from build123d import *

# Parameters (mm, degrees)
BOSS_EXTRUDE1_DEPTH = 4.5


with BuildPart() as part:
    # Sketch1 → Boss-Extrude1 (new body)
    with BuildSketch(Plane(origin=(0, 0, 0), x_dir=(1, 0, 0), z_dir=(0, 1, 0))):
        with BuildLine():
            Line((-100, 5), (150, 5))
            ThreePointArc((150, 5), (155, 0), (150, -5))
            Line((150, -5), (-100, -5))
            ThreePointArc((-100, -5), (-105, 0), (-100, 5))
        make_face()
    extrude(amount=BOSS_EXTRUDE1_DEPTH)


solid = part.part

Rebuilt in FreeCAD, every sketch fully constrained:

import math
import FreeCAD as App
import Part
import Sketcher

V = App.Vector
Q = App.Units.Quantity

doc = App.newDocument("Part")
params = doc.addObject("Spreadsheet::Sheet", "Params")
for row, (alias, value) in enumerate([
    ("sketch1_radius", "5 mm"),
    ("sketch1_width", "250 mm"),
    ("pad1_length", "4.5 mm"),
], start=1):
    params.set(f"A{row}", alias)
    params.set(f"B{row}", "=" + value)
    params.setAlias(f"B{row}", alias)

body = doc.addObject("PartDesign::Body", "Body")

# Sketch on XZ plane
sketch1 = body.newObject("Sketcher::SketchObject", "Sketch")
sketch1.AttachmentSupport = (doc.getObject("XZ_Plane"), [""])
sketch1.MapMode = "FlatFace"
sketch1.addGeometry(Part.LineSegment(V(150, -5, 0), V(-100, -5, 0)), False)
sketch1.addGeometry(Part.ArcOfCircle(Part.Circle(V(-100, 0, 0), V(0, 0, 1), 5), math.radians(90), math.radians(270)), False)
sketch1.addGeometry(Part.LineSegment(V(-100, 5, 0), V(150, 5, 0)), False)
sketch1.addGeometry(Part.ArcOfCircle(Part.Circle(V(150, 0, 0), V(0, 0, 1), 5), math.radians(-90), math.radians(90)), False)
sketch1.addConstraint(Sketcher.Constraint("Tangent", 0, 2, 1, 2))
sketch1.addConstraint(Sketcher.Constraint("Tangent", 1, 1, 2, 1))
sketch1.addConstraint(Sketcher.Constraint("Tangent", 2, 2, 3, 2))
sketch1.addConstraint(Sketcher.Constraint("Tangent", 3, 1, 0, 1))
sketch1.addConstraint(Sketcher.Constraint("Horizontal", 0))
sketch1.addConstraint(Sketcher.Constraint("Horizontal", 2))
sketch1.addConstraint(Sketcher.Constraint("PointOnObject", 1, 3, -1))
sketch1.addConstraint(Sketcher.Constraint("Radius", 1, Q("5 mm")))
sketch1.addConstraint(Sketcher.Constraint("DistanceX", 0, 2, 0, 1, Q("250 mm")))
sketch1.addConstraint(Sketcher.Constraint("DistanceX", 1, 3, -1, 1, Q("100 mm")))
sketch1.setExpression("Constraints[7]", "Params.sketch1_radius")
sketch1.setExpression("Constraints[8]", "Params.sketch1_width")
pad1 = body.newObject("PartDesign::Pad", "Pad")
pad1.Profile = sketch1
pad1.setExpression("Length", "Params.pad1_length")
pad1.Reversed = True

doc.recompute()
